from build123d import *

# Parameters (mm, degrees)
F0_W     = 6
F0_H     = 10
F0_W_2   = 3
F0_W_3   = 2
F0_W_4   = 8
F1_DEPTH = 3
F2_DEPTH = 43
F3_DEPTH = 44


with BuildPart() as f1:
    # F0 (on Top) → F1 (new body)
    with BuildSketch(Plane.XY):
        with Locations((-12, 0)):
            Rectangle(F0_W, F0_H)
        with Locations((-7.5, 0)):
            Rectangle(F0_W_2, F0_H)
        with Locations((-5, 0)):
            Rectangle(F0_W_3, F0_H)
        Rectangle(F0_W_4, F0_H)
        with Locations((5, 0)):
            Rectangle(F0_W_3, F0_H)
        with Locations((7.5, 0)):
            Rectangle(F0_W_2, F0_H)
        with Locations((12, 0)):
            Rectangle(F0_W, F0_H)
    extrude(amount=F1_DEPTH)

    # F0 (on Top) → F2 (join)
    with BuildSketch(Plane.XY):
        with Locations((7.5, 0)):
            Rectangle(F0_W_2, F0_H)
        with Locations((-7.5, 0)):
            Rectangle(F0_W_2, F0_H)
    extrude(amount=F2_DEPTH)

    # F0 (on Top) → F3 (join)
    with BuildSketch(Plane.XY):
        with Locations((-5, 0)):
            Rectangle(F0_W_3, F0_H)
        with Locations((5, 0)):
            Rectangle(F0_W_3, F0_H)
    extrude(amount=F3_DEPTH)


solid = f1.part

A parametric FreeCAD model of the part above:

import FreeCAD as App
import Part
import Sketcher

V = App.Vector

doc = App.newDocument("Part")
body = doc.addObject("PartDesign::Body", "Body")

sketch1 = body.newObject("Sketcher::SketchObject", "Sketch")
sketch1.AttachmentSupport = (doc.getObject("XY_Plane"), [""])
sketch1.MapMode = "FlatFace"
sketch1.addGeometry(Part.LineSegment(V(-15, 5, 0), V(-15, -5, 0)), False)
sketch1.addGeometry(Part.LineSegment(V(-15, -5, 0), V(15, -5, 0)), False)
sketch1.addGeometry(Part.LineSegment(V(15, -5, 0), V(15, 5, 0)), False)
sketch1.addGeometry(Part.LineSegment(V(15, 5, 0), V(-15, 5, 0)), False)
sketch1.addConstraint(Sketcher.Constraint("Coincident", 0, 2, 1, 1))
sketch1.addConstraint(Sketcher.Constraint("Coincident", 1, 2, 2, 1))
sketch1.addConstraint(Sketcher.Constraint("Coincident", 2, 2, 3, 1))
sketch1.addConstraint(Sketcher.Constraint("Coincident", 3, 2, 0, 1))
sketch1.addConstraint(Sketcher.Constraint("Vertical", 0))
sketch1.addConstraint(Sketcher.Constraint("Horizontal", 1))
sketch1.addConstraint(Sketcher.Constraint("Vertical", 2))
sketch1.addConstraint(Sketcher.Constraint("Horizontal", 3))
sketch1.addConstraint(Sketcher.Constraint("Symmetric", 0, 2, 2, 2, -1, 1))
sketch1.addConstraint(Sketcher.Constraint("DistanceX", 1, 1, 1, 2, 30.0))
sketch1.addConstraint(Sketcher.Constraint("DistanceY", 0, 2, 0, 1, 10.0))
pad1 = body.newObject("PartDesign::Pad", "Pad")
pad1.Profile = sketch1
pad1.Length = 3

sketch2 = body.newObject("Sketcher::SketchObject", "Sketch001")
sketch2.AttachmentSupport = (doc.getObject("XY_Plane"), [""])
sketch2.MapMode = "FlatFace"
sketch2.addGeometry(Part.LineSegment(V(6, 5, 0), V(6, -5, 0)), False)
sketch2.addGeometry(Part.LineSegment(V(6, -5, 0), V(9, -5, 0)), False)
sketch2.addGeometry(Part.LineSegment(V(9, -5, 0), V(9, 5, 0)), False)
sketch2.addGeometry(Part.LineSegment(V(9, 5, 0), V(6, 5, 0)), False)
sketch2.addGeometry(Part.LineSegment(V(-9, 5, 0), V(-9, -5, 0)), False)
sketch2.addGeometry(Part.LineSegment(V(-9, -5, 0), V(-6, -5, 0)), False)
sketch2.addGeometry(Part.LineSegment(V(-6, -5, 0), V(-6, 5, 0)), False)
sketch2.addGeometry(Part.LineSegment(V(-6, 5, 0), V(-9, 5, 0)), False)
sketch2.addConstraint(Sketcher.Constraint("Coincident", 0, 2, 1, 1))
sketch2.addConstraint(Sketcher.Constraint("Coincident", 1, 2, 2, 1))
sketch2.addConstraint(Sketcher.Constraint("Coincident", 2, 2, 3, 1))
sketch2.addConstraint(Sketcher.Constraint("Coincident", 3, 2, 0, 1))
sketch2.addConstraint(Sketcher.Constraint("Coincident", 4, 2, 5, 1))
sketch2.addConstraint(Sketcher.Constraint("Coincident", 5, 2, 6, 1))
sketch2.addConstraint(Sketcher.Constraint("Coincident", 6, 2, 7, 1))
sketch2.addConstraint(Sketcher.Constraint("Coincident", 7, 2, 4, 1))
sketch2.addConstraint(Sketcher.Constraint("Vertical", 0))
sketch2.addConstraint(Sketcher.Constraint("Horizontal", 1))
sketch2.addConstraint(Sketcher.Constraint("Vertical", 2))
sketch2.addConstraint(Sketcher.Constraint("Horizontal", 3))
sketch2.addConstraint(Sketcher.Constraint("Vertical", 4))
sketch2.addConstraint(Sketcher.Constraint("Horizontal", 5))
sketch2.addConstraint(Sketcher.Constraint("Vertical", 6))
sketch2.addConstraint(Sketcher.Constraint("Horizontal", 7))
sketch2.addConstraint(Sketcher.Constraint("Symmetric", 2, 2, 4, 2, -1, 1))
sketch2.addConstraint(Sketcher.Constraint("Symmetric", 0, 2, 6, 2, -1, 1))
sketch2.addConstraint(Sketcher.Constraint("Horizontal", 1, 2, 4, 2))
sketch2.addConstraint(Sketcher.Constraint("DistanceX", 1, 1, 1, 2, 3.0))
sketch2.addConstraint(Sketcher.Constraint("DistanceY", 0, 2, 0, 1, 10.0))
sketch2.addConstraint(Sketcher.Constraint("DistanceX", -1, 1, 0, 2, 6.0))
pad2 = body.newObject("PartDesign::Pad", "Pad001")
pad2.Profile = sketch2
pad2.Length = 43

sketch3 = body.newObject("Sketcher::SketchObject", "Sketch002")
sketch3.AttachmentSupport = (doc.getObject("XY_Plane"), [""])
sketch3.MapMode = "FlatFace"
sketch3.addGeometry(Part.LineSegment(V(-6, 5, 0), V(-6, -5, 0)), False)
sketch3.addGeometry(Part.LineSegment(V(-6, -5, 0), V(-4, -5, 0)), False)
sketch3.addGeometry(Part.LineSegment(V(-4, -5, 0), V(-4, 5, 0)), False)
sketch3.addGeometry(Part.LineSegment(V(-4, 5, 0), V(-6, 5, 0)), False)
sketch3.addGeometry(Part.LineSegment(V(4, 5, 0), V(4, -5, 0)), False)
sketch3.addGeometry(Part.LineSegment(V(4, -5, 0), V(6, -5, 0)), False)
sketch3.addGeometry(Part.LineSegment(V(6, -5, 0), V(6, 5, 0)), False)
sketch3.addGeometry(Part.LineSegment(V(6, 5, 0), V(4, 5, 0)), False)
sketch3.addConstraint(Sketcher.Constraint("Coincident", 0, 2, 1, 1))
sketch3.addConstraint(Sketcher.Constraint("Coincident", 1, 2, 2, 1))
sketch3.addConstraint(Sketcher.Constraint("Coincident", 2, 2, 3, 1))
sketch3.addConstraint(Sketcher.Constraint("Coincident", 3, 2, 0, 1))
sketch3.addConstraint(Sketcher.Constraint("Coincident", 4, 2, 5, 1))
sketch3.addConstraint(Sketcher.Constraint("Coincident", 5, 2, 6, 1))
sketch3.addConstraint(Sketcher.Constraint("Coincident", 6, 2, 7, 1))
sketch3.addConstraint(Sketcher.Constraint("Coincident", 7, 2, 4, 1))
sketch3.addConstraint(Sketcher.Constraint("Vertical", 0))
sketch3.addConstraint(Sketcher.Constraint("Horizontal", 1))
sketch3.addConstraint(Sketcher.Constraint("Vertical", 2))
sketch3.addConstraint(Sketcher.Constraint("Horizontal", 3))
sketch3.addConstraint(Sketcher.Constraint("Vertical", 4))
sketch3.addConstraint(Sketcher.Constraint("Horizontal", 5))
sketch3.addConstraint(Sketcher.Constraint("Vertical", 6))
sketch3.addConstraint(Sketcher.Constraint("Horizontal", 7))
sketch3.addConstraint(Sketcher.Constraint("Symmetric", 2, 2, 4, 2, -1, 1))
sketch3.addConstraint(Sketcher.Constraint("Symmetric", 0, 2, 6, 2, -1, 1))
sketch3.addConstraint(Sketcher.Constraint("Horizontal", 1, 2, 4, 2))
sketch3.addConstraint(Sketcher.Constraint("DistanceX", 1, 1, 1, 2, 2.0))
sketch3.addConstraint(Sketcher.Constraint("DistanceY", 0, 2, 0, 1, 10.0))
sketch3.addConstraint(Sketcher.Constraint("DistanceX", 0, 2, -1, 1, 6.0))
pad3 = body.newObject("PartDesign::Pad", "Pad002")
pad3.Profile = sketch3
pad3.Length = 44

doc.recompute()
